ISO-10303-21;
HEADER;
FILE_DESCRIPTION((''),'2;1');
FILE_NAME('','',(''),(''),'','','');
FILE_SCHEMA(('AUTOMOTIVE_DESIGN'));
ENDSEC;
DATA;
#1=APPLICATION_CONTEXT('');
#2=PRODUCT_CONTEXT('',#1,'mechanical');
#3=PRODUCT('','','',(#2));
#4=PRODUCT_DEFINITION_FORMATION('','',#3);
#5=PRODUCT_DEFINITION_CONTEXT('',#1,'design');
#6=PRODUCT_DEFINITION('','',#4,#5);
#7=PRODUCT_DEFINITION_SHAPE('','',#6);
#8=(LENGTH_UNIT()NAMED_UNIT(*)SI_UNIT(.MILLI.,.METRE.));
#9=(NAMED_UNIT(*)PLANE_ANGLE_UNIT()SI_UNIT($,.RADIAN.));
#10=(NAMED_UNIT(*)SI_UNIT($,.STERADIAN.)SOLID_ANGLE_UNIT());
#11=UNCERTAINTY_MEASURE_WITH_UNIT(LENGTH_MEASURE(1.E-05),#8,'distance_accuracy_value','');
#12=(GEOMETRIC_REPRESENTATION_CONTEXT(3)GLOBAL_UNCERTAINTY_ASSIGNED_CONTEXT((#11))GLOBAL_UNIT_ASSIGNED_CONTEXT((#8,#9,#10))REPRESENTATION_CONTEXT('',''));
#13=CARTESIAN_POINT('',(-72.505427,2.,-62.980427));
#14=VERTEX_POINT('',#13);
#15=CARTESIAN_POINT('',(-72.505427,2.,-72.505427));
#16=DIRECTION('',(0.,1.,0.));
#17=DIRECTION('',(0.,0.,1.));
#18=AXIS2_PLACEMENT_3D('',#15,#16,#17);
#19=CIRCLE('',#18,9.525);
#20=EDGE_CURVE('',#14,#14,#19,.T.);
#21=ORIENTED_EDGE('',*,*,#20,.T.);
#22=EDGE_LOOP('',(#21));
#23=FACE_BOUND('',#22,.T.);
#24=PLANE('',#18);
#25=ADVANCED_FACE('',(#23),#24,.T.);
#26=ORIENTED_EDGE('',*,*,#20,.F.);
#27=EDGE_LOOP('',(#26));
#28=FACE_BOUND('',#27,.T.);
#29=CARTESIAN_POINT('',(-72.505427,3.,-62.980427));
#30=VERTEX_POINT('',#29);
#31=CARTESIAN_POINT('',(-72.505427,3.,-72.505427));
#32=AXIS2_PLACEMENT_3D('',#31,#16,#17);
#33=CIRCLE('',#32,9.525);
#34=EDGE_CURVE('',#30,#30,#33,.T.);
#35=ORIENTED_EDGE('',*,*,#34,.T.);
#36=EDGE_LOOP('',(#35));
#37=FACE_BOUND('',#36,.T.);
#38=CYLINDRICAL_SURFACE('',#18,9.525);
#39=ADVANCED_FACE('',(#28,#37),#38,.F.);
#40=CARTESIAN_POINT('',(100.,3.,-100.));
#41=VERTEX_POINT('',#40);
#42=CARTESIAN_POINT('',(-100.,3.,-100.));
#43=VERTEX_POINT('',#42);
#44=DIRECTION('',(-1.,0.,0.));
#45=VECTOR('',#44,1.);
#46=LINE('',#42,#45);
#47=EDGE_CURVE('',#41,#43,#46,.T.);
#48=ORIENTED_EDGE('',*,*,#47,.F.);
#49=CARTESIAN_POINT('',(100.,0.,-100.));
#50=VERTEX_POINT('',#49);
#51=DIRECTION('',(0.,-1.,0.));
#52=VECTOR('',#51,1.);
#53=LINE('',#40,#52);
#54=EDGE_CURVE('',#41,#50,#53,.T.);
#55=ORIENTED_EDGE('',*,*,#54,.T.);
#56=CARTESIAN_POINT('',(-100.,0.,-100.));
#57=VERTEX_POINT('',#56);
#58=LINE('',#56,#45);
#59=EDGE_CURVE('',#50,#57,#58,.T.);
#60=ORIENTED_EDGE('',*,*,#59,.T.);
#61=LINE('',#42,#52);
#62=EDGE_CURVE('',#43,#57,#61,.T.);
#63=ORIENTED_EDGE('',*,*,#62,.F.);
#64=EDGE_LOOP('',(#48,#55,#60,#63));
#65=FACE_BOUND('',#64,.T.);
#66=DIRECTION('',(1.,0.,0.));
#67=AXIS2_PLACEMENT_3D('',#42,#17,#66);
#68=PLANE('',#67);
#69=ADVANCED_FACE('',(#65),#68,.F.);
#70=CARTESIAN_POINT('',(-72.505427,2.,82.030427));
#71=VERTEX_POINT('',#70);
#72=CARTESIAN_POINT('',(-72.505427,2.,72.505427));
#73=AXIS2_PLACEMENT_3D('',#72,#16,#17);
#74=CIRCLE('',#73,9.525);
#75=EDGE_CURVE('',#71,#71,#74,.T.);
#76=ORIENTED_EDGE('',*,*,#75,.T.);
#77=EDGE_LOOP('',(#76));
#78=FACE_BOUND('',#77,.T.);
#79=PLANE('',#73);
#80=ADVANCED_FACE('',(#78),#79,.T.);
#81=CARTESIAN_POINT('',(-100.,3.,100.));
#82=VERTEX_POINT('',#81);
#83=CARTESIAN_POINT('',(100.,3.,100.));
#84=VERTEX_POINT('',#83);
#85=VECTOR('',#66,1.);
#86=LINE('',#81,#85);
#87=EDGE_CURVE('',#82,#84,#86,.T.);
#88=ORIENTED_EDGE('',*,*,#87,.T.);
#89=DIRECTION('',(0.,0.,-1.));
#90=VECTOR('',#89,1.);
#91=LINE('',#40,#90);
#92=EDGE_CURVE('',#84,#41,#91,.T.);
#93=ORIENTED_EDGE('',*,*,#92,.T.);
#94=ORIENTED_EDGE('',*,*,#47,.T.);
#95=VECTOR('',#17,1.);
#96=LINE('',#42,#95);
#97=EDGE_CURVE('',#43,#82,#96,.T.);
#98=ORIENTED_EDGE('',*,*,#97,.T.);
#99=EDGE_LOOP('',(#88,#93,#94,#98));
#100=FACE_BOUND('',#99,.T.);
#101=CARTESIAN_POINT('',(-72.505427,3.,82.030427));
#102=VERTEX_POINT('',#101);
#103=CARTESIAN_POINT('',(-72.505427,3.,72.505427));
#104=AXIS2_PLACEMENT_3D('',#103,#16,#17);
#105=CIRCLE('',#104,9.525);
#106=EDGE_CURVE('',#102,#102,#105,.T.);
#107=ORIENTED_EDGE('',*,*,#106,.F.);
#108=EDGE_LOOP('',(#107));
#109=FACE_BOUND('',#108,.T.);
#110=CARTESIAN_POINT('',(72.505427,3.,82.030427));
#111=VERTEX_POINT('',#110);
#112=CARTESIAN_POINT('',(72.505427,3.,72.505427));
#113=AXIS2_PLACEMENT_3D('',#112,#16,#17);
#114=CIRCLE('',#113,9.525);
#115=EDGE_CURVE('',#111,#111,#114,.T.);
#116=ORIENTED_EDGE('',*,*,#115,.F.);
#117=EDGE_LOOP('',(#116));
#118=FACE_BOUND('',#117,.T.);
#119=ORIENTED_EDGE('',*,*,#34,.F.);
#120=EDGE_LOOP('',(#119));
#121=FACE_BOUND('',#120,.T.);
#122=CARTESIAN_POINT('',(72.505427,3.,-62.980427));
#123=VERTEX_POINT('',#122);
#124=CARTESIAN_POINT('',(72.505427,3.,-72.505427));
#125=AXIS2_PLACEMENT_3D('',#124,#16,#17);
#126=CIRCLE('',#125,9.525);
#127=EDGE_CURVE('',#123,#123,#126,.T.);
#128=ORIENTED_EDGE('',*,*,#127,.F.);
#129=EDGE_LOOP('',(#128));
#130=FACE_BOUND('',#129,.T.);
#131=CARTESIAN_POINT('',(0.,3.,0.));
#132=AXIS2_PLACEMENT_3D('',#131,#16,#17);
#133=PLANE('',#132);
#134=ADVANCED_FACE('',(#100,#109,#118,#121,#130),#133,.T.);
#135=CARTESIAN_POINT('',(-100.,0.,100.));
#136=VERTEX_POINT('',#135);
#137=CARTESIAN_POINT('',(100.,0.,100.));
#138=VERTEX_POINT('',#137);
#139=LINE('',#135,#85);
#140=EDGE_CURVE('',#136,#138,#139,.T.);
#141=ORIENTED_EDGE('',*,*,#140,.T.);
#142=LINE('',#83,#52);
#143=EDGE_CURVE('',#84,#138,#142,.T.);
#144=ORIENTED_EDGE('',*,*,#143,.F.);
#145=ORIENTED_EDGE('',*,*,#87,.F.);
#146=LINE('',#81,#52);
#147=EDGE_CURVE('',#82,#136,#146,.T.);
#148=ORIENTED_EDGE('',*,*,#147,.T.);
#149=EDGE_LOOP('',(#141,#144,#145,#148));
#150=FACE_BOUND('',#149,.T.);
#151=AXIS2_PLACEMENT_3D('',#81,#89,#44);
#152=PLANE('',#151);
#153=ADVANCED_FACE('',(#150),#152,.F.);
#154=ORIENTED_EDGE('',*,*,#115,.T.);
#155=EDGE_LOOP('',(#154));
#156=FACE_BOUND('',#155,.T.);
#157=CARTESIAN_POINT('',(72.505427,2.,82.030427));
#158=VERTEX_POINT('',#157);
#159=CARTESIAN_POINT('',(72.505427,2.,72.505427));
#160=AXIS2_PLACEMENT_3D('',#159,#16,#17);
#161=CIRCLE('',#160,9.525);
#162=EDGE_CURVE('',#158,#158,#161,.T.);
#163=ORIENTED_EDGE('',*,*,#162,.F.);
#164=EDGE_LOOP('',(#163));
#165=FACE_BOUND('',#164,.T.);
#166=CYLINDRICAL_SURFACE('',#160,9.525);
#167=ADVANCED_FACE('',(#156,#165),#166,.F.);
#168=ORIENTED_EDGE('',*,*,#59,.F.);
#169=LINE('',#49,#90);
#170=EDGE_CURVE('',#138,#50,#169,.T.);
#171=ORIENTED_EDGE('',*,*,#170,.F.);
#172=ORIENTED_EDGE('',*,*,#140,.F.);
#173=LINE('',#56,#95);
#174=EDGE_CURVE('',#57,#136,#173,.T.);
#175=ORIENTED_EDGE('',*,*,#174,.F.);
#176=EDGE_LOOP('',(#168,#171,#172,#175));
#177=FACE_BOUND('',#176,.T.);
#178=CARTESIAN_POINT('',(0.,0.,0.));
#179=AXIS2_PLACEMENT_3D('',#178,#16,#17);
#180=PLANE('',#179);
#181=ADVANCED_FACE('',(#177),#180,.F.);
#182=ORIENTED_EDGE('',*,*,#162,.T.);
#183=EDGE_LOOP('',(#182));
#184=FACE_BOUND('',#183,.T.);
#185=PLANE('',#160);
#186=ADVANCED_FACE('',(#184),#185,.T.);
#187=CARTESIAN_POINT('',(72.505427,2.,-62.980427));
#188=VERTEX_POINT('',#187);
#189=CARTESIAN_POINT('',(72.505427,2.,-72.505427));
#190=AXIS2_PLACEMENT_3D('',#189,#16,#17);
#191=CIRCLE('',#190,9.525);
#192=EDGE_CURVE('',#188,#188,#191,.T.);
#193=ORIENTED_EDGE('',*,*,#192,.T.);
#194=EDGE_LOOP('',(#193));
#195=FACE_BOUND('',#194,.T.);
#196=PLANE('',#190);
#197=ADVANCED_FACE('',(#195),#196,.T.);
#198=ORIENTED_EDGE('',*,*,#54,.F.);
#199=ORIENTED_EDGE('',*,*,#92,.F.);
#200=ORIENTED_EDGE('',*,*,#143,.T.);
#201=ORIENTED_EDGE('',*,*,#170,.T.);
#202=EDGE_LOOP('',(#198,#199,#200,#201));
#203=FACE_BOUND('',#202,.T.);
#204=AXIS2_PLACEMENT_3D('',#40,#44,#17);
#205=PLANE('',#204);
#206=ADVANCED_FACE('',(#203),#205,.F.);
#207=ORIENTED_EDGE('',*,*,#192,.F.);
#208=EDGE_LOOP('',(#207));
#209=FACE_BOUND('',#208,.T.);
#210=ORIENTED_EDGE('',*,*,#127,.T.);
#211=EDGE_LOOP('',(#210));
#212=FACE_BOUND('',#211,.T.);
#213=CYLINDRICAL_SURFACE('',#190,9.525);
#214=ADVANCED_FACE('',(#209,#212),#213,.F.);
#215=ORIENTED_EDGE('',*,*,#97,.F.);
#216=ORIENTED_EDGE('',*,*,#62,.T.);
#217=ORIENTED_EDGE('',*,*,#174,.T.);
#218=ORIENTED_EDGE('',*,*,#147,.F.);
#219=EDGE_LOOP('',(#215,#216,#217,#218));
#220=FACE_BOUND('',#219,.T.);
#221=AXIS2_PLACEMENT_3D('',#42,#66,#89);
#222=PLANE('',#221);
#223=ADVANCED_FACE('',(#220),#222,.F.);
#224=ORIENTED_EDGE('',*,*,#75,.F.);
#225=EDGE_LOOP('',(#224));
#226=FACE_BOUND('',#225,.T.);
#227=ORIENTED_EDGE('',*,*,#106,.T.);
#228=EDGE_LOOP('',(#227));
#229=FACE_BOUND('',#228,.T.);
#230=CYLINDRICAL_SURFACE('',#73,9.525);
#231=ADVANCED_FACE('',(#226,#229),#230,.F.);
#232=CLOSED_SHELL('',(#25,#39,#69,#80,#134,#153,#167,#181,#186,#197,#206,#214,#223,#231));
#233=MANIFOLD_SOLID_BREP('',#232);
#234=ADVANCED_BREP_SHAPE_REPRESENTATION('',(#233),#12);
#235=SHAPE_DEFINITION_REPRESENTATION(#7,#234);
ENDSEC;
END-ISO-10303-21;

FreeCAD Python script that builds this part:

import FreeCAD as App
import Part
import Sketcher


def add_polygon(sketch, points):
    """Adds a closed chain of lines whose ends are joined by coincident constraints."""
    first, n = sketch.GeometryCount, len(points)
    for a, b in zip(points, points[1:] + points[:1]):
        sketch.addGeometry(Part.LineSegment(App.Vector(*a, 0), App.Vector(*b, 0)), False)
    for i in range(n):
        sketch.addConstraint(Sketcher.Constraint("Coincident", first + i, 2, first + (i + 1) % n, 1))

doc = App.newDocument("Part")
params = doc.addObject("Spreadsheet::Sheet", "Params")
for row, (alias, value) in enumerate([
    ("sketch1_width", "200 mm"),
    ("pad1_length", "3 mm"),
    ("sketch2_diameter", "19.05 mm"),
    ("pocket1_length", "1 mm"),
], start=1):
    params.set(f"A{row}", alias)
    params.set(f"B{row}", "=" + value)
    params.setAlias(f"B{row}", alias)

body = doc.addObject("PartDesign::Body", "Body")

# Sketch on XZ plane
sketch1 = doc.addObject("Sketcher::SketchObject", "Sketch")
body.addObject(sketch1)
sketch1.AttachmentSupport = (doc.XZ_Plane, [""])
sketch1.MapMode = "FlatFace"
add_polygon(sketch1, [(-100, -100), (-100, 100), (100, 100), (100, -100)])  # lines 0-3
sketch1.addConstraint([
    Sketcher.Constraint("Vertical", 0),
    Sketcher.Constraint("Horizontal", 1),
    Sketcher.Constraint("Vertical", 2),
    Sketcher.Constraint("Horizontal", 3),
    Sketcher.Constraint("Symmetric", 0, 2, 2, 2, -1, 1),
    Sketcher.Constraint("Equal", 3, 0),
    Sketcher.Constraint("DistanceX", 1, 1, 1, 2, 200.0),
])
sketch1.setExpression("Constraints[10]", "Params.sketch1_width")
pad1 = doc.addObject("PartDesign::Pad", "Pad")
body.addObject(pad1)
pad1.Profile = sketch1
pad1.setExpression("Length", "Params.pad1_length")
pad1.Reversed = True

# Sketch on XZ plane
sketch2 = doc.addObject("Sketcher::SketchObject", "Sketch001")
body.addObject(sketch2)
sketch2.AttachmentSupport = (doc.XZ_Plane, [""])
sketch2.MapMode = "FlatFace"
sketch2.AttachmentOffset = App.Placement(App.Vector(0, 0, -3), App.Rotation())
sketch2.addGeometry([
    Part.Circle(App.Vector(-72.505427, -72.505427, 0), App.Vector(0, 0, 1), 9.525),
    Part.Circle(App.Vector(72.505427, -72.505427, 0), App.Vector(0, 0, 1), 9.525),
    Part.Circle(App.Vector(72.505427, 72.505427, 0), App.Vector(0, 0, 1), 9.525),
    Part.Circle(App.Vector(-72.505427, 72.505427, 0), App.Vector(0, 0, 1), 9.525),
], False)
sketch2.addConstraint([
    Sketcher.Constraint("Equal", 0, 1),
    Sketcher.Constraint("Equal", 1, 2),
    Sketcher.Constraint("Equal", 2, 3),
    Sketcher.Constraint("Symmetric", 0, 3, 2, 3, -1, 1),
    Sketcher.Constraint("Symmetric", 1, 3, 3, 3, -1, 1),
    Sketcher.Constraint("Symmetric", 0, 3, 1, 3, -2),
    Sketcher.Constraint("Diameter", 0, 19.05),
    Sketcher.Constraint("DistanceX", 0, 3, -1, 1, 72.505427),
    Sketcher.Constraint("DistanceY", 0, 3, -1, 1, 72.505427),
])
sketch2.setExpression("Constraints[6]", "Params.sketch2_diameter")
pocket1 = doc.addObject("PartDesign::Pocket", "Pocket")
body.addObject(pocket1)
pocket1.Profile = sketch2
pocket1.setExpression("Length", "Params.pocket1_length")
pocket1.Reversed = True

doc.recompute()
